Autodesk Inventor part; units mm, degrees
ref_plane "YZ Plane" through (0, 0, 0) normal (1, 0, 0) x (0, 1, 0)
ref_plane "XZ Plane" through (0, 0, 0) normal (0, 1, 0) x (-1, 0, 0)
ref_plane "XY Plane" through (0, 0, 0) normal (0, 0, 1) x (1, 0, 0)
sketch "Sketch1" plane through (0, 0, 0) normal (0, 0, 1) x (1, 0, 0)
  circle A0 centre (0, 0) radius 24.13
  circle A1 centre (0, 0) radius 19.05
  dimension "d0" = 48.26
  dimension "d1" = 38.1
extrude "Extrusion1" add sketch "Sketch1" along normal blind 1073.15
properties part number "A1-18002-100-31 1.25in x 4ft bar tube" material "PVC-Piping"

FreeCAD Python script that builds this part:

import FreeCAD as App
import Part
import Sketcher

V = App.Vector
Q = App.Units.Quantity

doc = App.newDocument("Part")
body = doc.addObject("PartDesign::Body", "Body")

# Sketch on XY plane
sketch1 = body.newObject("Sketcher::SketchObject", "Sketch")
sketch1.AttachmentSupport = (doc.getObject("XY_Plane"), [""])
sketch1.MapMode = "FlatFace"
sketch1.addGeometry(Part.Circle(V(0, 0, 0), V(0, 0, 1), 24.13), False)
sketch1.addGeometry(Part.Circle(V(0, 0, 0), V(0, 0, 1), 19.05), False)
sketch1.addConstraint(Sketcher.Constraint("Coincident", 0, 3, -1, 1))
sketch1.addConstraint(Sketcher.Constraint("Coincident", 1, 3, -1, 1))
sketch1.addConstraint(Sketcher.Constraint("Diameter", 0, Q("1.9 in")))
sketch1.addConstraint(Sketcher.Constraint("Diameter", 1, Q("1.5 in")))
pad1 = body.newObject("PartDesign::Pad", "Pad")
pad1.Profile = sketch1
pad1.Length = Q("42.25 in")

doc.recompute()
